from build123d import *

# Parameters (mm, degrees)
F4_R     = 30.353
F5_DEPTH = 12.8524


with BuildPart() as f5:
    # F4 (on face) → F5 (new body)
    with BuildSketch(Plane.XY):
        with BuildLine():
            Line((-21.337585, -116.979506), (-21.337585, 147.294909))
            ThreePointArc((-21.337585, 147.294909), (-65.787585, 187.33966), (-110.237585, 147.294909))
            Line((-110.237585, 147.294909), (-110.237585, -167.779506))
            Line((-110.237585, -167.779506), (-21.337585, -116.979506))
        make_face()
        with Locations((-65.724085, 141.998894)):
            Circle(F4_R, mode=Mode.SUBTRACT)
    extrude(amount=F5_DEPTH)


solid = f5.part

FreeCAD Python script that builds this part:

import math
import FreeCAD as App
import Part
import Sketcher
Q = App.Units.Quantity

doc = App.newDocument("Part")
body = doc.addObject("PartDesign::Body", "Body")

# Sketch on XY plane
sketch1 = doc.addObject("Sketcher::SketchObject", "Sketch")
body.addObject(sketch1)
sketch1.AttachmentSupport = (doc.XY_Plane, [""])
sketch1.MapMode = "FlatFace"
sketch1.addGeometry(Part.LineSegment(App.Vector(-21.337585, -116.979506, 0), App.Vector(-21.337585, 147.294909, 0)), False)
sketch1.addGeometry(Part.ArcOfCircle(Part.Circle(App.Vector(-65.787585, 142.647353, 0), App.Vector(0, 0, 1), 44.692307), math.radians(5.968983), math.radians(174.031017)), False)
sketch1.addGeometry(Part.LineSegment(App.Vector(-110.237585, 147.294909, 0), App.Vector(-110.237585, -167.779506, 0)), False)
sketch1.addGeometry(Part.LineSegment(App.Vector(-110.237585, -167.779506, 0), App.Vector(-21.337585, -116.979506, 0)), False)
sketch1.addGeometry(Part.Circle(App.Vector(-65.724085, 141.998894, 0), App.Vector(0, 0, 1), 30.353), False)
sketch1.addConstraint(Sketcher.Constraint("Coincident", 0, 2, 1, 1))
sketch1.addConstraint(Sketcher.Constraint("Coincident", 1, 2, 2, 1))
sketch1.addConstraint(Sketcher.Constraint("Coincident", 2, 2, 3, 1))
sketch1.addConstraint(Sketcher.Constraint("Coincident", 3, 2, 0, 1))
sketch1.addConstraint(Sketcher.Constraint("Vertical", 0))
sketch1.addConstraint(Sketcher.Constraint("Vertical", 2))
sketch1.addConstraint(Sketcher.Constraint("Horizontal", 0, 2, 1, 2))
sketch1.addConstraint(Sketcher.Constraint("Diameter", 4, Q("2.39 in")))
sketch1.addConstraint(Sketcher.Constraint("DistanceY", 2, 2, 3, 2, Q("2 in")))
sketch1.addConstraint(Sketcher.Constraint("DistanceX", 1, 2, 0, 2, Q("3.5 in")))
sketch1.addConstraint(Sketcher.Constraint("DistanceY", 2, 2, 4, 3, Q("12.196 in")))
sketch1.addConstraint(Sketcher.Constraint("Radius", 1, 44.692307))
sketch1.addConstraint(Sketcher.Constraint("DistanceX", 1, 3, 4, 3, Q("0.0025 in")))
sketch1.addConstraint(Sketcher.Constraint("DistanceY", 0, 1, 0, 2, 264.274415))
sketch1.addConstraint(Sketcher.Constraint("DistanceY", -1, 1, 0, 2, 147.294909))
sketch1.addConstraint(Sketcher.Constraint("DistanceX", 1, 3, -1, 1, 65.787585))
pad1 = doc.addObject("PartDesign::Pad", "Pad")
body.addObject(pad1)
pad1.Profile = sketch1
pad1.Length = Q("0.506 in")

doc.recompute()
